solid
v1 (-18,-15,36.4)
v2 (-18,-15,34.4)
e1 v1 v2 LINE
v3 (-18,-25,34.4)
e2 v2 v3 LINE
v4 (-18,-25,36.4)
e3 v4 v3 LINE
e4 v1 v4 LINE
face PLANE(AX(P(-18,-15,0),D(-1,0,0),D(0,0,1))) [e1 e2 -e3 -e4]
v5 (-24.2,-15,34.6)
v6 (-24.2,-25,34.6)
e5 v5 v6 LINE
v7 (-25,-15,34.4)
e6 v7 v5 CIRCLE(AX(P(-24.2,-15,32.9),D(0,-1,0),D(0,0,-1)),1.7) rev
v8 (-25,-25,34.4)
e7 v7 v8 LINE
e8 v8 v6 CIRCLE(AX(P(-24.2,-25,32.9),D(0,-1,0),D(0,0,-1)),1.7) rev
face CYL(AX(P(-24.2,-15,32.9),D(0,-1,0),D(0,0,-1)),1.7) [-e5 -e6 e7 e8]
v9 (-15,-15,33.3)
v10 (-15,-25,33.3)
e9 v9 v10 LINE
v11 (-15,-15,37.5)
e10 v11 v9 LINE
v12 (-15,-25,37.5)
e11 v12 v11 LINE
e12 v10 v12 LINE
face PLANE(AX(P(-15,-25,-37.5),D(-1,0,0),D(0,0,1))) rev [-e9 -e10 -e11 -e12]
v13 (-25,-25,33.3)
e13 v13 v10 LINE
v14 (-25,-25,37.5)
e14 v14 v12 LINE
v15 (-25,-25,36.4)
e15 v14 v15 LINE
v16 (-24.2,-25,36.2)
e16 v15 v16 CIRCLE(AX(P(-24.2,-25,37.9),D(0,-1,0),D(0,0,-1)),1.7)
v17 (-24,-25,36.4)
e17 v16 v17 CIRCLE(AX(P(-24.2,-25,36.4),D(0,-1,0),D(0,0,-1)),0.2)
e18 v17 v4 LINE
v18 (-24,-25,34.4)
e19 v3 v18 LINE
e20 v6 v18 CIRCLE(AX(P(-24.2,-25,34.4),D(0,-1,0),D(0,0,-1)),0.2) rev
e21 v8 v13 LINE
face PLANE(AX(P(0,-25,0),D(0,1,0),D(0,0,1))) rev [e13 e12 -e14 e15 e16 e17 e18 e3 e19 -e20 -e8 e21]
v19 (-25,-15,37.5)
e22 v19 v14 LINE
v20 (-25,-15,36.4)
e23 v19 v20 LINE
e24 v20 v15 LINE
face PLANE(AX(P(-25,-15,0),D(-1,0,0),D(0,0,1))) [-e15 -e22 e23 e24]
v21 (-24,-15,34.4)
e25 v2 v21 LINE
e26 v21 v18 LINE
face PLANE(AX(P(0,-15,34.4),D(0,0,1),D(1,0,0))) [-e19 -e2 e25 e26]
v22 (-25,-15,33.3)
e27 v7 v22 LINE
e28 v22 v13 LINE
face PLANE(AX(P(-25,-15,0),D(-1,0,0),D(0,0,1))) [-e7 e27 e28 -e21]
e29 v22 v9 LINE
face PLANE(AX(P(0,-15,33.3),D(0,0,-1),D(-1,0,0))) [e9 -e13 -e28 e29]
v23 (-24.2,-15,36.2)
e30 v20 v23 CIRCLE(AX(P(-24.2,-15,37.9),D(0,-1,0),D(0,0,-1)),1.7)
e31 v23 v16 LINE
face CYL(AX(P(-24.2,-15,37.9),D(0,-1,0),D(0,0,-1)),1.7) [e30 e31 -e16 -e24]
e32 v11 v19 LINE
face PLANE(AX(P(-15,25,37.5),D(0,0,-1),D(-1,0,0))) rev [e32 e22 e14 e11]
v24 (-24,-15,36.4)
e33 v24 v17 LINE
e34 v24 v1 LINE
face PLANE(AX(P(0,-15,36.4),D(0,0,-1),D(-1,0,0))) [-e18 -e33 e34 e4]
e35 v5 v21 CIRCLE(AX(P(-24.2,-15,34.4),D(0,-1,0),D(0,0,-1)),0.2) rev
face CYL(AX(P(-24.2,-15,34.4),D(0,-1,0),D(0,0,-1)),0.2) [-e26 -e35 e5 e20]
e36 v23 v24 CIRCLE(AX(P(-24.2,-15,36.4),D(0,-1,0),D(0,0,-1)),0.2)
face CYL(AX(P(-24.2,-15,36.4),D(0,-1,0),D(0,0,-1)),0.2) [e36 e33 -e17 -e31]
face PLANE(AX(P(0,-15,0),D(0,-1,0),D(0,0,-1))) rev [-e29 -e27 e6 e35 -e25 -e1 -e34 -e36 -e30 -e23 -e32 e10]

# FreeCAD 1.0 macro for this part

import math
import FreeCAD as App
import Part
import Sketcher

V = App.Vector
Q = App.Units.Quantity


def add_polygon(sketch, points):
    """Adds a closed chain of lines whose ends are joined by coincident constraints."""
    first, n = sketch.GeometryCount, len(points)
    for a, b in zip(points, points[1:] + points[:1]):
        sketch.addGeometry(Part.LineSegment(App.Vector(*a, 0), App.Vector(*b, 0)), False)
    for i in range(n):
        sketch.addConstraint(Sketcher.Constraint("Coincident", first + i, 2, first + (i + 1) % n, 1))

doc = App.newDocument("Part")
body = doc.addObject("PartDesign::Body", "Body")

# Sketch on XZ plane
sketch1 = body.newObject("Sketcher::SketchObject", "Sketch")
sketch1.AttachmentSupport = (doc.getObject("XZ_Plane"), [""])
sketch1.MapMode = "FlatFace"
add_polygon(sketch1, [(-15, -38), (-15, 38), (15, 38), (15, -38)])  # lines 0-3
sketch1.addConstraint(Sketcher.Constraint("Vertical", 0))
sketch1.addConstraint(Sketcher.Constraint("Horizontal", 1))
sketch1.addConstraint(Sketcher.Constraint("Vertical", 2))
sketch1.addConstraint(Sketcher.Constraint("Horizontal", 3))
sketch1.addConstraint(Sketcher.Constraint("Symmetric", 0, 2, 2, 2, -1, 1))
sketch1.addConstraint(Sketcher.Constraint("DistanceX", 1, 1, 1, 2, Q("30 mm")))
sketch1.addConstraint(Sketcher.Constraint("DistanceY", 0, 1, 0, 2, Q("75 mm")))
pad1 = body.newObject("PartDesign::Pad", "Pad")
pad1.Profile = sketch1
pad1.Length = 50
pad1.Midplane = True

# Sketch on XY plane
sketch2 = body.newObject("Sketcher::SketchObject", "Sketch001")
sketch2.AttachmentSupport = (doc.getObject("XY_Plane"), [""])
sketch2.MapMode = "FlatFace"
sketch2.AttachmentOffset = App.Placement(V(0, 0, 37.5), App.Rotation())
sketch2.addGeometry(Part.Circle(V(0, -15, 0), V(0, 0, 1), 5), False)
sketch2.addConstraint(Sketcher.Constraint("PointOnObject", 0, 3, -2))
sketch2.addConstraint(Sketcher.Constraint("Diameter", 0, Q("10 mm")))
sketch2.addConstraint(Sketcher.Constraint("DistanceY", 0, 3, -1, 1, Q("15 mm")))
pocket1 = body.newObject("PartDesign::Pocket", "Pocket")
pocket1.Profile = sketch2
pocket1.Type = "UpToFirst"

# Sketch on YZ plane
sketch3 = body.newObject("Sketcher::SketchObject", "Sketch002")
sketch3.AttachmentSupport = (doc.getObject("YZ_Plane"), [""])
sketch3.MapMode = "FlatFace"
sketch3.AttachmentOffset = App.Placement(V(0, 0, 15), App.Rotation())
sketch3.addGeometry(Part.Circle(V(15, 15, 0), V(0, 0, 1), 5), False)
sketch3.addConstraint(Sketcher.Constraint("Diameter", 0, Q("10 mm")))
sketch3.addConstraint(Sketcher.Constraint("DistanceX", -1, 1, 0, 3, Q("15 mm")))
sketch3.addConstraint(Sketcher.Constraint("DistanceY", -1, 1, 0, 3, Q("15 mm")))
pocket2 = body.newObject("PartDesign::Pocket", "Pocket001")
pocket2.Profile = sketch3
pocket2.Type = "UpToFirst"

# Sketch on YZ plane
sketch4 = body.newObject("Sketcher::SketchObject", "Sketch003")
sketch4.AttachmentSupport = (doc.getObject("YZ_Plane"), [""])
sketch4.MapMode = "FlatFace"
sketch4.AttachmentOffset = App.Placement(V(0, 0, 15), App.Rotation())
sketch4.addGeometry(Part.Circle(V(15, -15, 0), V(0, 0, 1), 5), False)
sketch4.addConstraint(Sketcher.Constraint("Diameter", 0, Q("10 mm")))
sketch4.addConstraint(Sketcher.Constraint("DistanceX", -1, 1, 0, 3, Q("15 mm")))
sketch4.addConstraint(Sketcher.Constraint("DistanceY", 0, 3, -1, 1, Q("15 mm")))
pocket3 = body.newObject("PartDesign::Pocket", "Pocket002")
pocket3.Profile = sketch4
pocket3.Type = "UpToFirst"

# Sketch on XZ plane
sketch5 = body.newObject("Sketcher::SketchObject", "Sketch004")
sketch5.AttachmentSupport = (doc.getObject("XZ_Plane"), [""])
sketch5.MapMode = "FlatFace"
sketch5.AttachmentOffset = App.Placement(V(0, 0, 25), App.Rotation())
sketch5.addGeometry(Part.LineSegment(V(-15, 33.3, 0), V(-15, 37.5, 0)), False)
sketch5.addGeometry(Part.LineSegment(V(-15, 37.5, 0), V(-25, 37.5, 0)), False)
sketch5.addGeometry(Part.LineSegment(V(-25, 37.5, 0), V(-25, 36.4, 0)), False)
sketch5.addGeometry(Part.ArcOfCircle(Part.Circle(V(-24.2, 37.9, 0), V(0, 0, 1), 1.7), math.radians(-118), math.radians(-90)), False)
sketch5.addGeometry(Part.ArcOfCircle(Part.Circle(V(-24.2, 36.4, 0), V(0, 0, 1), 0.2), math.radians(-90), math.radians(0)), False)
sketch5.addGeometry(Part.LineSegment(V(-24, 36.4, 0), V(-18, 36.4, 0)), False)
sketch5.addGeometry(Part.LineSegment(V(-18, 36.4, 0), V(-18, 34.4, 0)), False)
sketch5.addGeometry(Part.LineSegment(V(-18, 34.4, 0), V(-24, 34.4, 0)), False)
sketch5.addGeometry(Part.ArcOfCircle(Part.Circle(V(-24.2, 34.4, 0), V(0, 0, 1), 0.2), math.radians(0), math.radians(90)), False)
sketch5.addGeometry(Part.ArcOfCircle(Part.Circle(V(-24.2, 32.9, 0), V(0, 0, 1), 1.7), math.radians(90), math.radians(118)), False)
sketch5.addGeometry(Part.LineSegment(V(-25, 34.4, 0), V(-25, 33.3, 0)), False)
sketch5.addGeometry(Part.LineSegment(V(-25, 33.3, 0), V(-15, 33.3, 0)), False)
sketch5.addConstraint(Sketcher.Constraint("Coincident", 0, 2, 1, 1))
sketch5.addConstraint(Sketcher.Constraint("Coincident", 1, 2, 2, 1))
sketch5.addConstraint(Sketcher.Constraint("Coincident", 2, 2, 3, 1))
sketch5.addConstraint(Sketcher.Constraint("Tangent", 3, 2, 4, 1))
sketch5.addConstraint(Sketcher.Constraint("Coincident", 4, 2, 5, 1))
sketch5.addConstraint(Sketcher.Constraint("Coincident", 5, 2, 6, 1))
sketch5.addConstraint(Sketcher.Constraint("Coincident", 6, 2, 7, 1))
sketch5.addConstraint(Sketcher.Constraint("Coincident", 7, 2, 8, 1))
sketch5.addConstraint(Sketcher.Constraint("Tangent", 8, 2, 9, 1))
sketch5.addConstraint(Sketcher.Constraint("Coincident", 9, 2, 10, 1))
sketch5.addConstraint(Sketcher.Constraint("Coincident", 10, 2, 11, 1))
sketch5.addConstraint(Sketcher.Constraint("Coincident", 11, 2, 0, 1))
sketch5.addConstraint(Sketcher.Constraint("Vertical", 0))
sketch5.addConstraint(Sketcher.Constraint("Horizontal", 1))
sketch5.addConstraint(Sketcher.Constraint("Vertical", 2))
sketch5.addConstraint(Sketcher.Constraint("Horizontal", 5))
sketch5.addConstraint(Sketcher.Constraint("Vertical", 6))
sketch5.addConstraint(Sketcher.Constraint("Horizontal", 7))
sketch5.addConstraint(Sketcher.Constraint("Vertical", 10))
sketch5.addConstraint(Sketcher.Constraint("Horizontal", 11))
sketch5.addConstraint(Sketcher.Constraint("Equal", 4, 8))
sketch5.addConstraint(Sketcher.Constraint("Equal", 3, 9))
sketch5.addConstraint(Sketcher.Constraint("Horizontal", 4, 3, 2, 2))
sketch5.addConstraint(Sketcher.Constraint("Horizontal", 2, 2, 4, 2))
sketch5.addConstraint(Sketcher.Constraint("Horizontal", 8, 3, 6, 2))
sketch5.addConstraint(Sketcher.Constraint("Horizontal", 7, 2, 9, 2))
sketch5.addConstraint(Sketcher.Constraint("Vertical", 3, 3, 4, 3))
sketch5.addConstraint(Sketcher.Constraint("Vertical", 4, 3, 8, 3))
sketch5.addConstraint(Sketcher.Constraint("Vertical", 8, 3, 9, 3))
sketch5.addConstraint(Sketcher.Constraint("Equal", 2, 10))
sketch5.addConstraint(Sketcher.Constraint("Radius", 3, Q("1.7 mm")))
sketch5.addConstraint(Sketcher.Constraint("Radius", 4, Q("0.2 mm")))
sketch5.addConstraint(Sketcher.Constraint("DistanceX", 1, 2, 1, 1, Q("10 mm")))
sketch5.addConstraint(Sketcher.Constraint("DistanceX", 5, 1, 5, 2, Q("6 mm")))
sketch5.addConstraint(Sketcher.Constraint("DistanceY", 6, 2, 6, 1, Q("2 mm")))
sketch5.addConstraint(Sketcher.Constraint("DistanceY", 0, 1, 0, 2, Q("4.2 mm")))
sketch5.addConstraint(Sketcher.Constraint("DistanceX", 0, 2, -1, 1, Q("15 mm")))
sketch5.addConstraint(Sketcher.Constraint("DistanceY", -1, 1, 3, 3, Q("37.9 mm")))
pad2 = body.newObject("PartDesign::Pad", "Pad001")
pad2.Profile = sketch5
pad2.Length = 10
pad2.Reversed = True

# Sketch on XZ plane
sketch6 = body.newObject("Sketcher::SketchObject", "Sketch005")
sketch6.AttachmentSupport = (doc.getObject("XZ_Plane"), [""])
sketch6.MapMode = "FlatFace"
add_polygon(sketch6, [(-15, -38), (-15, 38), (15, 38), (15, -38)])  # lines 0-3
sketch6.addConstraint(Sketcher.Constraint("Vertical", 0))
sketch6.addConstraint(Sketcher.Constraint("Horizontal", 1))
sketch6.addConstraint(Sketcher.Constraint("Vertical", 2))
sketch6.addConstraint(Sketcher.Constraint("Horizontal", 3))
sketch6.addConstraint(Sketcher.Constraint("Symmetric", 0, 2, 2, 2, -1, 1))
sketch6.addConstraint(Sketcher.Constraint("DistanceX", 1, 1, 1, 2, Q("30 mm")))
sketch6.addConstraint(Sketcher.Constraint("DistanceY", 0, 1, 0, 2, Q("75 mm")))
pocket4 = body.newObject("PartDesign::Pocket", "Pocket003")
pocket4.Profile = sketch6
pocket4.Type = "ThroughAll"
pocket4.Midplane = True

doc.recompute()
